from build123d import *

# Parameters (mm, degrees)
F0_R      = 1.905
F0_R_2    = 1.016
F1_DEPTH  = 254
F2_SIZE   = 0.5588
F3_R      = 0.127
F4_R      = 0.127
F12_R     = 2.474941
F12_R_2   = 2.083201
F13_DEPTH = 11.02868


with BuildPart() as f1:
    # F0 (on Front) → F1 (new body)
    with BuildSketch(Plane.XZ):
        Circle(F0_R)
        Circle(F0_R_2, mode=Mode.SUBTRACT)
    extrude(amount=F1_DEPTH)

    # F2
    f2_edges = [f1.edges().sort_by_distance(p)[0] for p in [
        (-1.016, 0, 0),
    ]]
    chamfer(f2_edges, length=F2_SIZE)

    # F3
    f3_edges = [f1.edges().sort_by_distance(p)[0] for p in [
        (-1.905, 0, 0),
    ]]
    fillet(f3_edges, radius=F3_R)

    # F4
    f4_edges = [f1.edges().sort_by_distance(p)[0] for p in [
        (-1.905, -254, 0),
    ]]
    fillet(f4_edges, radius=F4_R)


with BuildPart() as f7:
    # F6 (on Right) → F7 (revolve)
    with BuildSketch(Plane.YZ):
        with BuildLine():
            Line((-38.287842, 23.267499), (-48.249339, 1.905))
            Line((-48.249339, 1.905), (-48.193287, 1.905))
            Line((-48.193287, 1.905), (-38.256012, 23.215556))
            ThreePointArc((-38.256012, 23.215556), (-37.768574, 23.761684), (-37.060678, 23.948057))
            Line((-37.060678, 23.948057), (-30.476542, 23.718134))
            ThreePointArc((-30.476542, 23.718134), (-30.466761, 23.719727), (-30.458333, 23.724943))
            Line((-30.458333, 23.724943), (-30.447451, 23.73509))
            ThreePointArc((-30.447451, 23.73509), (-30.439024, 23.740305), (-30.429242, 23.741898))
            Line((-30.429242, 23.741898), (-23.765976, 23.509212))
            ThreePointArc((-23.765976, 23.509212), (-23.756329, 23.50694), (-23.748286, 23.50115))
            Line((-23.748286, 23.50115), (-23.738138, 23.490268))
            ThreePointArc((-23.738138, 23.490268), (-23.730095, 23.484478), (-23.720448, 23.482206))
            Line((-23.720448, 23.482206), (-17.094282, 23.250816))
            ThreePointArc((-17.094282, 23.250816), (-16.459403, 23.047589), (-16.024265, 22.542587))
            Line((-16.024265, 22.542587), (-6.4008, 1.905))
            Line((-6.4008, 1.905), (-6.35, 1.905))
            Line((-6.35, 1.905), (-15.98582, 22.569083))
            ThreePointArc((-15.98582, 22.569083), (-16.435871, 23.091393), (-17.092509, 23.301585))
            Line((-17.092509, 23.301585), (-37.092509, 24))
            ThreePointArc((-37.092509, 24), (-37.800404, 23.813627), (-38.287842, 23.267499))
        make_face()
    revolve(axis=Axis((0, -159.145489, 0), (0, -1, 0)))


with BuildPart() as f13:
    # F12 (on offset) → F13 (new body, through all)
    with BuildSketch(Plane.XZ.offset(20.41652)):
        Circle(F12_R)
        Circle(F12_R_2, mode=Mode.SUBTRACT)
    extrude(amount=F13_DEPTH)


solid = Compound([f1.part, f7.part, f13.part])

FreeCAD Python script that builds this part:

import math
import FreeCAD as App
import Part
import Sketcher
Q = App.Units.Quantity


def edges_at(feature, points):
    """Names of the edges that pass closest to the given points."""
    edges = feature.Shape.Edges
    near = lambda p: min(range(len(edges)), key=lambda i: edges[i].distToShape(Part.Vertex(*p))[0])
    return sorted({f"Edge{near(p) + 1}" for p in points})

doc = App.newDocument("Part")
params = doc.addObject("Spreadsheet::Sheet", "Params")
for row, (alias, value) in enumerate([
    ("sketch1_diameter", "0.15 in"),
    ("sketch1_diameter2", "0.08 in"),
    ("pad1_length", "10 in"),
    ("chamfer_size", "0.022 in"),
    ("fillet_radius", "0.005 in"),
    ("fillet2_radius", "0.005 in"),
    ("sketch2_radius", "0.05 in"),
    ("sketch2_radius2", "0.0500001 in"),
    ("sketch2_radius3", "0.0009999 in"),
    ("sketch2_radius4", "0.0010001 in"),
    ("sketch2_width", "0.002 in"),
    ("revolution_angle", "360 deg"),
    ("pad2_length", "0.4342 in"),
], start=1):
    params.set(f"A{row}", alias)
    params.set(f"B{row}", "=" + value)
    params.setAlias(f"B{row}", alias)

body = doc.addObject("PartDesign::Body", "Body")

sketch1 = body.newObject("Sketcher::SketchObject", "Sketch")
sketch1.AttachmentSupport = (doc.getObject("XZ_Plane"), [""])
sketch1.MapMode = "FlatFace"
sketch1.addGeometry([
    Part.Circle(App.Vector(0, 0, 0), App.Vector(0, 0, 1), 1.9),
    Part.Circle(App.Vector(0, 0, 0), App.Vector(0, 0, 1), 1),
], False)
sketch1.addConstraint([
    Sketcher.Constraint("Coincident", 0, 3, -1, 1),
    Sketcher.Constraint("Coincident", 1, 3, -1, 1),
    Sketcher.Constraint("Diameter", 0, Q("0.15 in")),
    Sketcher.Constraint("Diameter", 1, Q("0.08 in")),
])
sketch1.setExpression("Constraints[2]", "Params.sketch1_diameter")
sketch1.setExpression("Constraints[3]", "Params.sketch1_diameter2")
pad1 = body.newObject("PartDesign::Pad", "Pad")
pad1.Profile = sketch1
pad1.setExpression("Length", "Params.pad1_length")
doc.recompute()

chamfer = body.newObject("PartDesign::Chamfer", "Chamfer")
chamfer.Base = (pad1, edges_at(pad1, [(-1.016, 0, 0)]))
chamfer.setExpression("Size", "Params.chamfer_size")
doc.recompute()

fillet = body.newObject("PartDesign::Fillet", "Fillet")
fillet.Base = (chamfer, edges_at(chamfer, [(-1.905, 0, 0)]))
fillet.setExpression("Radius", "Params.fillet_radius")
doc.recompute()

fillet2 = body.newObject("PartDesign::Fillet", "Fillet001")
fillet2.Base = (fillet, edges_at(fillet, [(-1.905, -254, 0)]))
fillet2.setExpression("Radius", "Params.fillet2_radius")
body2 = doc.addObject("PartDesign::Body", "Body001")

sketch2 = body2.newObject("Sketcher::SketchObject", "Sketch001")
sketch2.AttachmentSupport = (doc.getObject("YZ_Plane001"), [""])
sketch2.MapMode = "FlatFace"
sketch2.addGeometry([
    Part.LineSegment(App.Vector(-38.288, 23.267, 0), App.Vector(-48.249, 1.905, 0)),
    Part.LineSegment(App.Vector(-48.249, 1.905, 0), App.Vector(-48.193, 1.905, 0)),
    Part.LineSegment(App.Vector(-48.193, 1.905, 0), App.Vector(-38.256, 23.216, 0)),
    Part.ArcOfCircle(Part.Circle(App.Vector(-37.105, 22.679, 0), App.Vector(0, 0, 1), 1.27), math.radians(88), math.radians(155)),
    Part.LineSegment(App.Vector(-37.061, 23.948, 0), App.Vector(-30.477, 23.718, 0)),
    Part.ArcOfCircle(Part.Circle(App.Vector(-30.476, 23.744, 0), App.Vector(0, 0, 1), 0.025), math.radians(-92), math.radians(-47)),
    Part.LineSegment(App.Vector(-30.458, 23.725, 0), App.Vector(-30.447, 23.735, 0)),
    Part.ArcOfCircle(Part.Circle(App.Vector(-30.43, 23.717, 0), App.Vector(0, 0, 1), 0.025), math.radians(88), math.radians(133)),
    Part.LineSegment(App.Vector(-30.429, 23.742, 0), App.Vector(-23.766, 23.509, 0)),
    Part.ArcOfCircle(Part.Circle(App.Vector(-23.767, 23.484, 0), App.Vector(0, 0, 1), 0.025), math.radians(43), math.radians(88)),
    Part.LineSegment(App.Vector(-23.748, 23.501, 0), App.Vector(-23.738, 23.49, 0)),
    Part.ArcOfCircle(Part.Circle(App.Vector(-23.72, 23.508, 0), App.Vector(0, 0, 1), 0.025), math.radians(-137), math.radians(-92)),
    Part.LineSegment(App.Vector(-23.72, 23.482, 0), App.Vector(-17.094, 23.251, 0)),
    Part.ArcOfCircle(Part.Circle(App.Vector(-17.137, 22.024, 0), App.Vector(0, 0, 1), 1.228), math.radians(25), math.radians(88)),
    Part.LineSegment(App.Vector(-16.024, 22.543, 0), App.Vector(-6.401, 1.905, 0)),
    Part.LineSegment(App.Vector(-6.401, 1.905, 0), App.Vector(-6.35, 1.905, 0)),
    Part.LineSegment(App.Vector(-6.35, 1.905, 0), App.Vector(-15.986, 22.569, 0)),
    Part.ArcOfCircle(Part.Circle(App.Vector(-17.137, 22.032, 0), App.Vector(0, 0, 1), 1.27), math.radians(25), math.radians(88)),
    Part.LineSegment(App.Vector(-17.093, 23.302, 0), App.Vector(-37.093, 24, 0)),
    Part.ArcOfCircle(Part.Circle(App.Vector(-37.137, 22.731, 0), App.Vector(0, 0, 1), 1.27), math.radians(88), math.radians(155)),
], False)
sketch2.addConstraint([
    Sketcher.Constraint("Coincident", 0, 2, 1, 1),
    Sketcher.Constraint("Coincident", 1, 2, 2, 1),
    Sketcher.Constraint("Tangent", 2, 2, 3, 2),
    Sketcher.Constraint("Tangent", 3, 1, 4, 1),
    Sketcher.Constraint("Tangent", 4, 2, 5, 1),
    Sketcher.Constraint("Coincident", 5, 2, 6, 1),
    Sketcher.Constraint("Coincident", 6, 2, 7, 2),
    Sketcher.Constraint("Coincident", 7, 1, 8, 1),
    Sketcher.Constraint("Coincident", 8, 2, 9, 2),
    Sketcher.Constraint("Coincident", 9, 1, 10, 1),
    Sketcher.Constraint("Coincident", 10, 2, 11, 1),
    Sketcher.Constraint("Coincident", 11, 2, 12, 1),
    Sketcher.Constraint("Tangent", 12, 2, 13, 2),
    Sketcher.Constraint("Tangent", 13, 1, 14, 1),
    Sketcher.Constraint("Coincident", 14, 2, 15, 1),
    Sketcher.Constraint("Coincident", 15, 2, 16, 1),
    Sketcher.Constraint("Tangent", 16, 2, 17, 1),
    Sketcher.Constraint("Tangent", 17, 2, 18, 1),
    Sketcher.Constraint("Tangent", 18, 2, 19, 1),
    Sketcher.Constraint("Tangent", 19, 2, 0, 1),
    Sketcher.Constraint("Horizontal", 1),
    Sketcher.Constraint("Horizontal", 15),
    Sketcher.Constraint("Equal", 5, 7),
    Sketcher.Constraint("Equal", 9, 11),
    Sketcher.Constraint("Equal", 3, 19),
    Sketcher.Constraint("Parallel", 0, 2),
    Sketcher.Constraint("Parallel", 4, 8),
    Sketcher.Constraint("Parallel", 8, 12),
    Sketcher.Constraint("Parallel", 14, 16),
    Sketcher.Constraint("Parallel", 12, 18),
    Sketcher.Constraint("Horizontal", 1, 2, 14, 2),
    Sketcher.Constraint("Equal", 6, 10),
    Sketcher.Constraint("Radius", 3, Q("0.05 in")),
    Sketcher.Constraint("Radius", 17, Q("0.0500001 in")),
    Sketcher.Constraint("Angle", 0, Q("-115 deg")),
    Sketcher.Constraint("Angle", 4, Q("-1.999999 deg")),
    Sketcher.Constraint("Angle", 14, Q("-65 deg")),
    Sketcher.Constraint("Radius", 5, Q("0.0009999 in")),
    Sketcher.Constraint("Radius", 9, Q("0.0010001 in")),
    Sketcher.Constraint("DistanceX", 15, 1, 15, 2, Q("0.002 in")),
    Sketcher.Constraint("DistanceX", 15, 2, -1, 1, Q("0.25 in")),
    Sketcher.Constraint("DistanceY", -1, 1, 0, 2, Q("0.075 in")),
    Sketcher.Constraint("Radius", 13, Q("1.22792 mm")),
    Sketcher.Constraint("DistanceX", 3, 3, -1, 1, Q("37.105001 mm")),
    Sketcher.Constraint("DistanceY", -1, 1, 18, 2, Q("24 mm")),
    Sketcher.Constraint("DistanceY", 7, 3, 5, 3, Q("0.027 mm")),
    Sketcher.Constraint("DistanceX", 4, 2, 7, 1, Q("0.0473 mm")),
    Sketcher.Constraint("Distance", 4, Q("6.588149 mm")),
    Sketcher.Constraint("Distance", 6, Q("0.014879 mm")),
    Sketcher.Constraint("Distance", 18, Q("20.012191 mm")),
    Sketcher.Constraint("DistanceX", 1, 1, 1, 2, Q("0.056052 mm")),
    Sketcher.Constraint("DistanceX", 7, 3, -1, 1, Q("30.430129 mm")),
    Sketcher.Constraint("DistanceX", 11, 3, -1, 1, Q("23.71956 mm")),
    Sketcher.Constraint("DistanceX", 6, 2, -1, 1, Q("30.447451 mm")),
    Sketcher.Constraint("DistanceY", -1, 1, 9, 1, Q("23.50115 mm")),
    Sketcher.Constraint("DistanceY", -1, 1, 10, 2, Q("23.490268 mm")),
    Sketcher.Constraint("DistanceX", 11, 2, -1, 1, Q("23.720448 mm")),
    Sketcher.Constraint("DistanceX", 12, 2, -1, 1, Q("17.094282 mm")),
    Sketcher.Constraint("DistanceX", 9, 3, 8, 2, Q("0.000888 mm")),
])
sketch2.setExpression("Constraints[32]", "Params.sketch2_radius")
sketch2.setExpression("Constraints[33]", "Params.sketch2_radius2")
sketch2.setExpression("Constraints[37]", "Params.sketch2_radius3")
sketch2.setExpression("Constraints[38]", "Params.sketch2_radius4")
sketch2.setExpression("Constraints[39]", "Params.sketch2_width")
revolution = body2.newObject("PartDesign::Revolution", "Revolution")
revolution.Profile = sketch2
revolution.ReferenceAxis = (sketch2, ["H_Axis"])
revolution.setExpression("Angle", "Params.revolution_angle")
body3 = doc.addObject("PartDesign::Body", "Body002")

sketch3 = body3.newObject("Sketcher::SketchObject", "Sketch002")
sketch3.AttachmentSupport = (doc.getObject("XZ_Plane002"), [""])
sketch3.MapMode = "FlatFace"
sketch3.AttachmentOffset = App.Placement(App.Vector(0, 0, 0.8038 * 25.4), App.Rotation())
sketch3.addGeometry([
    Part.Circle(App.Vector(0, 0, 0), App.Vector(0, 0, 1), 2.5),
    Part.Circle(App.Vector(0, 0, 0), App.Vector(0, 0, 1), 2.1),
], False)
sketch3.addConstraint([
    Sketcher.Constraint("Coincident", 0, 3, -1, 1),
    Sketcher.Constraint("Coincident", 1, 3, -1, 1),
    Sketcher.Constraint("Diameter", 1, Q("4.166402 mm")),
    Sketcher.Constraint("Diameter", 0, Q("4.949882 mm")),
])
pad2 = body3.newObject("PartDesign::Pad", "Pad001")
pad2.Profile = sketch3
pad2.setExpression("Length", "Params.pad2_length")

doc.recompute()
